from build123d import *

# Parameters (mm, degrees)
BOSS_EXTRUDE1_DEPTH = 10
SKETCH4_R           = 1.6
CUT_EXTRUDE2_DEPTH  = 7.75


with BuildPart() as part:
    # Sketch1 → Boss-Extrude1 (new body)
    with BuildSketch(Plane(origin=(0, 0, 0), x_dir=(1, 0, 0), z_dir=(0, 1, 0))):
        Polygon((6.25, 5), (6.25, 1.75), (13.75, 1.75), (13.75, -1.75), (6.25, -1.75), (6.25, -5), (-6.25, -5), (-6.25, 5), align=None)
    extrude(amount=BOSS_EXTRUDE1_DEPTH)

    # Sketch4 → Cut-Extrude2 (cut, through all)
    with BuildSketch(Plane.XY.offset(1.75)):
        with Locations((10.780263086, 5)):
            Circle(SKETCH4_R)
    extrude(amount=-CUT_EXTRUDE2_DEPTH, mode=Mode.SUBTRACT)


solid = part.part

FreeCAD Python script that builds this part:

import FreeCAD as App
import Part
import Sketcher
from FreeCAD import Vector
Q = App.Units.Quantity


def add_polygon(sketch, points):
    """Adds a closed chain of lines whose ends are joined by coincident constraints."""
    first, n = sketch.GeometryCount, len(points)
    for a, b in zip(points, points[1:] + points[:1]):
        sketch.addGeometry(Part.LineSegment(App.Vector(*a, 0), App.Vector(*b, 0)), False)
    for i in range(n):
        sketch.addConstraint(Sketcher.Constraint("Coincident", first + i, 2, first + (i + 1) % n, 1))

doc = App.newDocument("Part")
body = doc.addObject("PartDesign::Body", "Body")

# Sketch on XZ plane
sketch1 = body.newObject("Sketcher::SketchObject", "Sketch")
sketch1.AttachmentSupport = (doc.getObject("XZ_Plane"), [""])
sketch1.MapMode = "FlatFace"
add_polygon(sketch1, [(6.2, -1.8), (6.2, -5), (-6.2, -5), (-6.2, 5), (6.2, 5), (6.2, 1.8), (13.8, 1.8), (13.8, -1.8)])  # lines 0-7
sketch1.addConstraint([
    Sketcher.Constraint("Vertical", 0),
    Sketcher.Constraint("Horizontal", 1),
    Sketcher.Constraint("Vertical", 2),
    Sketcher.Constraint("Horizontal", 3),
    Sketcher.Constraint("Vertical", 4),
    Sketcher.Constraint("Horizontal", 5),
    Sketcher.Constraint("Vertical", 6),
    Sketcher.Constraint("Horizontal", 7),
    Sketcher.Constraint("Symmetric", 0, 2, 2, 2, -1, 1),
    Sketcher.Constraint("Symmetric", 4, 2, 7, 2, -1),
    Sketcher.Constraint("DistanceY", 2, 1, 2, 2, Q("10 mm")),
    Sketcher.Constraint("DistanceX", 1, 2, 1, 1, Q("12.5 mm")),
    Sketcher.Constraint("DistanceX", 5, 1, 5, 2, Q("7.5 mm")),
    Sketcher.Constraint("DistanceY", 6, 2, 6, 1, Q("3.5 mm")),
])
pad1 = body.newObject("PartDesign::Pad", "Pad")
pad1.Profile = sketch1
pad1.Length = 10
pad1.Reversed = True

# Sketch on XY plane
sketch2 = body.newObject("Sketcher::SketchObject", "Sketch001")
sketch2.AttachmentSupport = (doc.getObject("XY_Plane"), [""])
sketch2.MapMode = "FlatFace"
sketch2.AttachmentOffset = App.Placement(Vector(0, 0, 1.75), App.Rotation())
sketch2.addGeometry(Part.Circle(Vector(10.8, 5, 0), Vector(0, 0, 1), 1.6), False)
sketch2.addConstraint([
    Sketcher.Constraint("Diameter", 0, Q("3.2 mm")),
    Sketcher.Constraint("DistanceY", -1, 1, 0, 3, Q("5 mm")),
    Sketcher.Constraint("DistanceX", -1, 1, 0, 3, Q("10.780263 mm")),
])
pocket1 = body.newObject("PartDesign::Pocket", "Pocket")
pocket1.Profile = sketch2
pocket1.Type = "ThroughAll"

doc.recompute()
